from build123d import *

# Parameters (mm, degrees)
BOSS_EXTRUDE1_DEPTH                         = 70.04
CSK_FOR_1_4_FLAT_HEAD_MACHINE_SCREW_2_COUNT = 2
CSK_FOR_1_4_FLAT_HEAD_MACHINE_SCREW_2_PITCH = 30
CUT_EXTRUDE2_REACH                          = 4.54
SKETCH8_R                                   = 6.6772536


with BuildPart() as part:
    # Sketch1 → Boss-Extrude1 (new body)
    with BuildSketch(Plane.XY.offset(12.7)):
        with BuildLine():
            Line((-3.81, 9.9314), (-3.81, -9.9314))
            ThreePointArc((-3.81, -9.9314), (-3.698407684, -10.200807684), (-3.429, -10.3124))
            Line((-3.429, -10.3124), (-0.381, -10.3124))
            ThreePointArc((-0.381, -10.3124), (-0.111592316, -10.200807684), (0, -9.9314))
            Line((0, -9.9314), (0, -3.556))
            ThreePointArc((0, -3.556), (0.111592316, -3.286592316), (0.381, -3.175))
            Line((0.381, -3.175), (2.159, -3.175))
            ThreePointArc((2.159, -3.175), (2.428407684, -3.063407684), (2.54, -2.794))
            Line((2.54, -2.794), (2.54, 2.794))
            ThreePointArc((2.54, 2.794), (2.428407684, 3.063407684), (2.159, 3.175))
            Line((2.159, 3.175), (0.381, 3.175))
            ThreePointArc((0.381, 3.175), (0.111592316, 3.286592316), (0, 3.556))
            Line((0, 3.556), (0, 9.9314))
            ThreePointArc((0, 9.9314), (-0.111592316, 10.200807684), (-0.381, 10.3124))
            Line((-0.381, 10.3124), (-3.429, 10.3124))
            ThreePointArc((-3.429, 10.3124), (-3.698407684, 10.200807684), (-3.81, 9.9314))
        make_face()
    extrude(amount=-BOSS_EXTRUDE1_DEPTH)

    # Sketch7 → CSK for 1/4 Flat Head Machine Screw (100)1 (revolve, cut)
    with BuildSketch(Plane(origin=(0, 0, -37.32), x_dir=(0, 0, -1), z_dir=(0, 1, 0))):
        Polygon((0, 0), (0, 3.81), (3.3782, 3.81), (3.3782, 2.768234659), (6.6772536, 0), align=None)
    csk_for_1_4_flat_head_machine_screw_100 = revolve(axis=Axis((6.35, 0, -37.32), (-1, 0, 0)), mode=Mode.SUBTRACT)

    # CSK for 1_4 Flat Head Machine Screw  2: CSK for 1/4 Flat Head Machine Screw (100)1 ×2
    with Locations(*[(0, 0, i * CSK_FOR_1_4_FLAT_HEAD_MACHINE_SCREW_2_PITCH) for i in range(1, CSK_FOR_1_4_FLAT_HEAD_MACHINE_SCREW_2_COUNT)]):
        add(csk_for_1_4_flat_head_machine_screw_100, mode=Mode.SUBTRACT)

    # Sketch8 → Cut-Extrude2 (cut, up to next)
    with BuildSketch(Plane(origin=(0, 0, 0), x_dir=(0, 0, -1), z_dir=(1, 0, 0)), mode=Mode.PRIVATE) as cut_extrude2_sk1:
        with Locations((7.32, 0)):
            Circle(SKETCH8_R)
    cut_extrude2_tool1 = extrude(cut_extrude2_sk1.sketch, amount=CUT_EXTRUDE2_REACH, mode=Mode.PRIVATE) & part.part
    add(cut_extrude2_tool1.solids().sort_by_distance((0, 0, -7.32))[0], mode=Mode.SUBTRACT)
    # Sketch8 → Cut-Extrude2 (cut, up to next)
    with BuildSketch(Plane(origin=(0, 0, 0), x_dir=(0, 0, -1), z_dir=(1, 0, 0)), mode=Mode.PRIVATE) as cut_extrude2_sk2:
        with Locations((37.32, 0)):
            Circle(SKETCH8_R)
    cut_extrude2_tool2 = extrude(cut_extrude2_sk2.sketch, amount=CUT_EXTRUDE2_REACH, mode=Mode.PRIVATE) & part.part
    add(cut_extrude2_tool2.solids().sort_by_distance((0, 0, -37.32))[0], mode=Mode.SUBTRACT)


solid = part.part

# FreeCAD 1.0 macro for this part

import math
import FreeCAD as App
import Part
import Sketcher
Q = App.Units.Quantity


def add_polygon(sketch, points):
    """Adds a closed chain of lines whose ends are joined by coincident constraints."""
    first, n = sketch.GeometryCount, len(points)
    for a, b in zip(points, points[1:] + points[:1]):
        sketch.addGeometry(Part.LineSegment(App.Vector(*a, 0), App.Vector(*b, 0)), False)
    for i in range(n):
        sketch.addConstraint(Sketcher.Constraint("Coincident", first + i, 2, first + (i + 1) % n, 1))

doc = App.newDocument("Part")
params = doc.addObject("Spreadsheet::Sheet", "Params")
for row, (alias, value) in enumerate([
    ("sketch1_radius", "0.015 in"),
    ("sketch1_width", "0.12 in"),
    ("sketch1_width2", "0.07 in"),
    ("sketch1_height", "0.22 in"),
    ("sketch1_height2", "0.782 in"),
    ("pad1_length", "70.04 mm"),
    ("sketch2_width", "0.15 in"),
    ("sketch2_height", "0.133 in"),
    ("groove_angle", "360 deg"),
    ("linearpattern_pitch", "30 mm"),
], start=1):
    params.set(f"A{row}", alias)
    params.set(f"B{row}", "=" + value)
    params.setAlias(f"B{row}", alias)

body = doc.addObject("PartDesign::Body", "Body")

sketch1 = body.newObject("Sketcher::SketchObject", "Sketch")
sketch1.AttachmentSupport = (doc.getObject("XY_Plane"), [""])
sketch1.MapMode = "FlatFace"
sketch1.AttachmentOffset = App.Placement(App.Vector(0, 0, 0.5 * 25.4), App.Rotation())
sketch1.addGeometry([
    Part.LineSegment(App.Vector(-3.81, 9.93, 0), App.Vector(-3.81, -9.93, 0)),
    Part.ArcOfCircle(Part.Circle(App.Vector(-3.43, -9.93, 0), App.Vector(0, 0, 1), 0.38), math.radians(180), math.radians(270)),
    Part.LineSegment(App.Vector(-3.43, -10.31, 0), App.Vector(-0.38, -10.31, 0)),
    Part.ArcOfCircle(Part.Circle(App.Vector(-0.38, -9.93, 0), App.Vector(0, 0, 1), 0.38), math.radians(-90), math.radians(0)),
    Part.LineSegment(App.Vector(0, -9.93, 0), App.Vector(0, -3.56, 0)),
    Part.ArcOfCircle(Part.Circle(App.Vector(0.38, -3.56, 0), App.Vector(0, 0, 1), 0.38), math.radians(90), math.radians(180)),
    Part.LineSegment(App.Vector(0.38, -3.17, 0), App.Vector(2.16, -3.17, 0)),
    Part.ArcOfCircle(Part.Circle(App.Vector(2.16, -2.79, 0), App.Vector(0, 0, 1), 0.38), math.radians(-90), math.radians(0)),
    Part.LineSegment(App.Vector(2.54, -2.79, 0), App.Vector(2.54, 2.79, 0)),
    Part.ArcOfCircle(Part.Circle(App.Vector(2.16, 2.79, 0), App.Vector(0, 0, 1), 0.38), math.radians(0), math.radians(90)),
    Part.LineSegment(App.Vector(2.16, 3.17, 0), App.Vector(0.38, 3.17, 0)),
    Part.ArcOfCircle(Part.Circle(App.Vector(0.38, 3.56, 0), App.Vector(0, 0, 1), 0.38), math.radians(180), math.radians(270)),
    Part.LineSegment(App.Vector(0, 3.56, 0), App.Vector(0, 9.93, 0)),
    Part.ArcOfCircle(Part.Circle(App.Vector(-0.38, 9.93, 0), App.Vector(0, 0, 1), 0.38), math.radians(0), math.radians(90)),
    Part.LineSegment(App.Vector(-0.38, 10.31, 0), App.Vector(-3.43, 10.31, 0)),
    Part.ArcOfCircle(Part.Circle(App.Vector(-3.43, 9.93, 0), App.Vector(0, 0, 1), 0.38), math.radians(90), math.radians(180)),
], False)
sketch1.addConstraint([
    Sketcher.Constraint("Tangent", 0, 2, 1, 1),
    Sketcher.Constraint("Tangent", 1, 2, 2, 1),
    Sketcher.Constraint("Tangent", 2, 2, 3, 1),
    Sketcher.Constraint("Tangent", 3, 2, 4, 1),
    Sketcher.Constraint("Tangent", 4, 2, 5, 2),
    Sketcher.Constraint("Tangent", 5, 1, 6, 1),
    Sketcher.Constraint("Tangent", 6, 2, 7, 1),
    Sketcher.Constraint("Tangent", 7, 2, 8, 1),
    Sketcher.Constraint("Tangent", 8, 2, 9, 1),
    Sketcher.Constraint("Tangent", 9, 2, 10, 1),
    Sketcher.Constraint("Tangent", 10, 2, 11, 2),
    Sketcher.Constraint("Tangent", 11, 1, 12, 1),
    Sketcher.Constraint("Tangent", 12, 2, 13, 1),
    Sketcher.Constraint("Tangent", 13, 2, 14, 1),
    Sketcher.Constraint("Tangent", 14, 2, 15, 1),
    Sketcher.Constraint("Tangent", 15, 2, 0, 1),
    Sketcher.Constraint("Vertical", 0),
    Sketcher.Constraint("Horizontal", 2),
    Sketcher.Constraint("Vertical", 4),
    Sketcher.Constraint("Horizontal", 6),
    Sketcher.Constraint("Vertical", 8),
    Sketcher.Constraint("Horizontal", 10),
    Sketcher.Constraint("Vertical", 12),
    Sketcher.Constraint("Horizontal", 14),
    Sketcher.Constraint("Equal", 1, 3),
    Sketcher.Constraint("Equal", 3, 5),
    Sketcher.Constraint("Equal", 5, 7),
    Sketcher.Constraint("Equal", 7, 9),
    Sketcher.Constraint("Equal", 9, 11),
    Sketcher.Constraint("Equal", 11, 13),
    Sketcher.Constraint("Equal", 13, 15),
    Sketcher.Constraint("Symmetric", 4, 2, 11, 1, -1, 1),
    Sketcher.Constraint("Symmetric", 3, 3, 13, 3, -1),
    Sketcher.Constraint("Radius", 1, Q("0.015 in")),
    Sketcher.Constraint("DistanceX", 2, 1, 2, 2, Q("0.12 in")),
    Sketcher.Constraint("DistanceX", 6, 1, 6, 2, Q("0.07 in")),
    Sketcher.Constraint("DistanceY", 8, 1, 8, 2, Q("0.22 in")),
    Sketcher.Constraint("DistanceY", 0, 2, 0, 1, Q("0.782 in")),
])
sketch1.setExpression("Constraints[33]", "Params.sketch1_radius")
sketch1.setExpression("Constraints[34]", "Params.sketch1_width")
sketch1.setExpression("Constraints[35]", "Params.sketch1_width2")
sketch1.setExpression("Constraints[36]", "Params.sketch1_height")
sketch1.setExpression("Constraints[37]", "Params.sketch1_height2")
pad1 = body.newObject("PartDesign::Pad", "Pad")
pad1.Profile = sketch1
pad1.setExpression("Length", "Params.pad1_length")
pad1.Reversed = True

sketch2 = body.newObject("Sketcher::SketchObject", "Sketch001")
sketch2.AttachmentSupport = (doc.getObject("XZ_Plane"), [""])
sketch2.MapMode = "FlatFace"
add_polygon(sketch2, [(-3.8, -37.3), (0, -37.3), (0, -44), (-2.8, -40.7), (-3.8, -40.7)])
sketch2.addGeometry(Part.LineSegment(App.Vector(0, -37.3, 0), App.Vector(-3.8, -37.3, 0)), True)
sketch2.addConstraint([
    Sketcher.Constraint("Horizontal", 0),
    Sketcher.Constraint("Vertical", 1),
    Sketcher.Constraint("Horizontal", 3),
    Sketcher.Constraint("Vertical", 4),
    Sketcher.Constraint("Horizontal", 5),
    Sketcher.Constraint("Coincident", 5, 1, 0, 2),
    Sketcher.Constraint("PointOnObject", 0, 2, -2),
    Sketcher.Constraint("Vertical", 3, 2, 5, 2),
    Sketcher.Constraint("Angle", 2, Q("130 deg")),
    Sketcher.Constraint("DistanceX", 0, 1, 0, 2, Q("0.15 in")),
    Sketcher.Constraint("DistanceY", 4, 1, 4, 2, Q("0.133 in")),
    Sketcher.Constraint("DistanceY", 0, 2, -1, 1, Q("37.32 mm")),
    Sketcher.Constraint("Distance", 2, Q("4.306609 mm")),
])
sketch2.setExpression("Constraints[14]", "Params.sketch2_width")
sketch2.setExpression("Constraints[15]", "Params.sketch2_height")
groove = body.newObject("PartDesign::Groove", "Groove")
groove.Profile = sketch2
groove.ReferenceAxis = (sketch2, ["Axis0"])
groove.setExpression("Angle", "Params.groove_angle")
doc.recompute()

linearpattern = body.newObject("PartDesign::LinearPattern", "LinearPattern")
linearpattern.Originals = [groove]
linearpattern.Direction = (doc.getObject("Z_Axis"), [""])
linearpattern.Mode = "offset"
linearpattern.setExpression("Offset", "Params.linearpattern_pitch")
linearpattern.Occurrences = 2
body.Tip = linearpattern

sketch3 = body.newObject("Sketcher::SketchObject", "Sketch002")
sketch3.AttachmentSupport = (doc.getObject("YZ_Plane"), [""])
sketch3.MapMode = "FlatFace"
sketch3.addGeometry(Part.Circle(App.Vector(0, -7, 0), App.Vector(0, 0, 1), 7), False)
sketch3.addConstraint([
    Sketcher.Constraint("PointOnObject", 0, 3, -2),
    Sketcher.Constraint("Diameter", 0, Q("13.354507 mm")),
    Sketcher.Constraint("DistanceY", 0, 3, -1, 1, Q("7.32 mm")),
])
pocket1 = body.newObject("PartDesign::Pocket", "Pocket")
pocket1.Profile = sketch3
pocket1.Type = "UpToFirst"
pocket1.Reversed = True

sketch4 = body.newObject("Sketcher::SketchObject", "Sketch003")
sketch4.AttachmentSupport = (doc.getObject("YZ_Plane"), [""])
sketch4.MapMode = "FlatFace"
sketch4.addGeometry(Part.Circle(App.Vector(0, -37, 0), App.Vector(0, 0, 1), 7), False)
sketch4.addConstraint([
    Sketcher.Constraint("PointOnObject", 0, 3, -2),
    Sketcher.Constraint("Diameter", 0, Q("13.354507 mm")),
    Sketcher.Constraint("DistanceY", 0, 3, -1, 1, Q("37.32 mm")),
])
pocket2 = body.newObject("PartDesign::Pocket", "Pocket001")
pocket2.Profile = sketch4
pocket2.Type = "UpToFirst"
pocket2.Reversed = True

doc.recompute()
